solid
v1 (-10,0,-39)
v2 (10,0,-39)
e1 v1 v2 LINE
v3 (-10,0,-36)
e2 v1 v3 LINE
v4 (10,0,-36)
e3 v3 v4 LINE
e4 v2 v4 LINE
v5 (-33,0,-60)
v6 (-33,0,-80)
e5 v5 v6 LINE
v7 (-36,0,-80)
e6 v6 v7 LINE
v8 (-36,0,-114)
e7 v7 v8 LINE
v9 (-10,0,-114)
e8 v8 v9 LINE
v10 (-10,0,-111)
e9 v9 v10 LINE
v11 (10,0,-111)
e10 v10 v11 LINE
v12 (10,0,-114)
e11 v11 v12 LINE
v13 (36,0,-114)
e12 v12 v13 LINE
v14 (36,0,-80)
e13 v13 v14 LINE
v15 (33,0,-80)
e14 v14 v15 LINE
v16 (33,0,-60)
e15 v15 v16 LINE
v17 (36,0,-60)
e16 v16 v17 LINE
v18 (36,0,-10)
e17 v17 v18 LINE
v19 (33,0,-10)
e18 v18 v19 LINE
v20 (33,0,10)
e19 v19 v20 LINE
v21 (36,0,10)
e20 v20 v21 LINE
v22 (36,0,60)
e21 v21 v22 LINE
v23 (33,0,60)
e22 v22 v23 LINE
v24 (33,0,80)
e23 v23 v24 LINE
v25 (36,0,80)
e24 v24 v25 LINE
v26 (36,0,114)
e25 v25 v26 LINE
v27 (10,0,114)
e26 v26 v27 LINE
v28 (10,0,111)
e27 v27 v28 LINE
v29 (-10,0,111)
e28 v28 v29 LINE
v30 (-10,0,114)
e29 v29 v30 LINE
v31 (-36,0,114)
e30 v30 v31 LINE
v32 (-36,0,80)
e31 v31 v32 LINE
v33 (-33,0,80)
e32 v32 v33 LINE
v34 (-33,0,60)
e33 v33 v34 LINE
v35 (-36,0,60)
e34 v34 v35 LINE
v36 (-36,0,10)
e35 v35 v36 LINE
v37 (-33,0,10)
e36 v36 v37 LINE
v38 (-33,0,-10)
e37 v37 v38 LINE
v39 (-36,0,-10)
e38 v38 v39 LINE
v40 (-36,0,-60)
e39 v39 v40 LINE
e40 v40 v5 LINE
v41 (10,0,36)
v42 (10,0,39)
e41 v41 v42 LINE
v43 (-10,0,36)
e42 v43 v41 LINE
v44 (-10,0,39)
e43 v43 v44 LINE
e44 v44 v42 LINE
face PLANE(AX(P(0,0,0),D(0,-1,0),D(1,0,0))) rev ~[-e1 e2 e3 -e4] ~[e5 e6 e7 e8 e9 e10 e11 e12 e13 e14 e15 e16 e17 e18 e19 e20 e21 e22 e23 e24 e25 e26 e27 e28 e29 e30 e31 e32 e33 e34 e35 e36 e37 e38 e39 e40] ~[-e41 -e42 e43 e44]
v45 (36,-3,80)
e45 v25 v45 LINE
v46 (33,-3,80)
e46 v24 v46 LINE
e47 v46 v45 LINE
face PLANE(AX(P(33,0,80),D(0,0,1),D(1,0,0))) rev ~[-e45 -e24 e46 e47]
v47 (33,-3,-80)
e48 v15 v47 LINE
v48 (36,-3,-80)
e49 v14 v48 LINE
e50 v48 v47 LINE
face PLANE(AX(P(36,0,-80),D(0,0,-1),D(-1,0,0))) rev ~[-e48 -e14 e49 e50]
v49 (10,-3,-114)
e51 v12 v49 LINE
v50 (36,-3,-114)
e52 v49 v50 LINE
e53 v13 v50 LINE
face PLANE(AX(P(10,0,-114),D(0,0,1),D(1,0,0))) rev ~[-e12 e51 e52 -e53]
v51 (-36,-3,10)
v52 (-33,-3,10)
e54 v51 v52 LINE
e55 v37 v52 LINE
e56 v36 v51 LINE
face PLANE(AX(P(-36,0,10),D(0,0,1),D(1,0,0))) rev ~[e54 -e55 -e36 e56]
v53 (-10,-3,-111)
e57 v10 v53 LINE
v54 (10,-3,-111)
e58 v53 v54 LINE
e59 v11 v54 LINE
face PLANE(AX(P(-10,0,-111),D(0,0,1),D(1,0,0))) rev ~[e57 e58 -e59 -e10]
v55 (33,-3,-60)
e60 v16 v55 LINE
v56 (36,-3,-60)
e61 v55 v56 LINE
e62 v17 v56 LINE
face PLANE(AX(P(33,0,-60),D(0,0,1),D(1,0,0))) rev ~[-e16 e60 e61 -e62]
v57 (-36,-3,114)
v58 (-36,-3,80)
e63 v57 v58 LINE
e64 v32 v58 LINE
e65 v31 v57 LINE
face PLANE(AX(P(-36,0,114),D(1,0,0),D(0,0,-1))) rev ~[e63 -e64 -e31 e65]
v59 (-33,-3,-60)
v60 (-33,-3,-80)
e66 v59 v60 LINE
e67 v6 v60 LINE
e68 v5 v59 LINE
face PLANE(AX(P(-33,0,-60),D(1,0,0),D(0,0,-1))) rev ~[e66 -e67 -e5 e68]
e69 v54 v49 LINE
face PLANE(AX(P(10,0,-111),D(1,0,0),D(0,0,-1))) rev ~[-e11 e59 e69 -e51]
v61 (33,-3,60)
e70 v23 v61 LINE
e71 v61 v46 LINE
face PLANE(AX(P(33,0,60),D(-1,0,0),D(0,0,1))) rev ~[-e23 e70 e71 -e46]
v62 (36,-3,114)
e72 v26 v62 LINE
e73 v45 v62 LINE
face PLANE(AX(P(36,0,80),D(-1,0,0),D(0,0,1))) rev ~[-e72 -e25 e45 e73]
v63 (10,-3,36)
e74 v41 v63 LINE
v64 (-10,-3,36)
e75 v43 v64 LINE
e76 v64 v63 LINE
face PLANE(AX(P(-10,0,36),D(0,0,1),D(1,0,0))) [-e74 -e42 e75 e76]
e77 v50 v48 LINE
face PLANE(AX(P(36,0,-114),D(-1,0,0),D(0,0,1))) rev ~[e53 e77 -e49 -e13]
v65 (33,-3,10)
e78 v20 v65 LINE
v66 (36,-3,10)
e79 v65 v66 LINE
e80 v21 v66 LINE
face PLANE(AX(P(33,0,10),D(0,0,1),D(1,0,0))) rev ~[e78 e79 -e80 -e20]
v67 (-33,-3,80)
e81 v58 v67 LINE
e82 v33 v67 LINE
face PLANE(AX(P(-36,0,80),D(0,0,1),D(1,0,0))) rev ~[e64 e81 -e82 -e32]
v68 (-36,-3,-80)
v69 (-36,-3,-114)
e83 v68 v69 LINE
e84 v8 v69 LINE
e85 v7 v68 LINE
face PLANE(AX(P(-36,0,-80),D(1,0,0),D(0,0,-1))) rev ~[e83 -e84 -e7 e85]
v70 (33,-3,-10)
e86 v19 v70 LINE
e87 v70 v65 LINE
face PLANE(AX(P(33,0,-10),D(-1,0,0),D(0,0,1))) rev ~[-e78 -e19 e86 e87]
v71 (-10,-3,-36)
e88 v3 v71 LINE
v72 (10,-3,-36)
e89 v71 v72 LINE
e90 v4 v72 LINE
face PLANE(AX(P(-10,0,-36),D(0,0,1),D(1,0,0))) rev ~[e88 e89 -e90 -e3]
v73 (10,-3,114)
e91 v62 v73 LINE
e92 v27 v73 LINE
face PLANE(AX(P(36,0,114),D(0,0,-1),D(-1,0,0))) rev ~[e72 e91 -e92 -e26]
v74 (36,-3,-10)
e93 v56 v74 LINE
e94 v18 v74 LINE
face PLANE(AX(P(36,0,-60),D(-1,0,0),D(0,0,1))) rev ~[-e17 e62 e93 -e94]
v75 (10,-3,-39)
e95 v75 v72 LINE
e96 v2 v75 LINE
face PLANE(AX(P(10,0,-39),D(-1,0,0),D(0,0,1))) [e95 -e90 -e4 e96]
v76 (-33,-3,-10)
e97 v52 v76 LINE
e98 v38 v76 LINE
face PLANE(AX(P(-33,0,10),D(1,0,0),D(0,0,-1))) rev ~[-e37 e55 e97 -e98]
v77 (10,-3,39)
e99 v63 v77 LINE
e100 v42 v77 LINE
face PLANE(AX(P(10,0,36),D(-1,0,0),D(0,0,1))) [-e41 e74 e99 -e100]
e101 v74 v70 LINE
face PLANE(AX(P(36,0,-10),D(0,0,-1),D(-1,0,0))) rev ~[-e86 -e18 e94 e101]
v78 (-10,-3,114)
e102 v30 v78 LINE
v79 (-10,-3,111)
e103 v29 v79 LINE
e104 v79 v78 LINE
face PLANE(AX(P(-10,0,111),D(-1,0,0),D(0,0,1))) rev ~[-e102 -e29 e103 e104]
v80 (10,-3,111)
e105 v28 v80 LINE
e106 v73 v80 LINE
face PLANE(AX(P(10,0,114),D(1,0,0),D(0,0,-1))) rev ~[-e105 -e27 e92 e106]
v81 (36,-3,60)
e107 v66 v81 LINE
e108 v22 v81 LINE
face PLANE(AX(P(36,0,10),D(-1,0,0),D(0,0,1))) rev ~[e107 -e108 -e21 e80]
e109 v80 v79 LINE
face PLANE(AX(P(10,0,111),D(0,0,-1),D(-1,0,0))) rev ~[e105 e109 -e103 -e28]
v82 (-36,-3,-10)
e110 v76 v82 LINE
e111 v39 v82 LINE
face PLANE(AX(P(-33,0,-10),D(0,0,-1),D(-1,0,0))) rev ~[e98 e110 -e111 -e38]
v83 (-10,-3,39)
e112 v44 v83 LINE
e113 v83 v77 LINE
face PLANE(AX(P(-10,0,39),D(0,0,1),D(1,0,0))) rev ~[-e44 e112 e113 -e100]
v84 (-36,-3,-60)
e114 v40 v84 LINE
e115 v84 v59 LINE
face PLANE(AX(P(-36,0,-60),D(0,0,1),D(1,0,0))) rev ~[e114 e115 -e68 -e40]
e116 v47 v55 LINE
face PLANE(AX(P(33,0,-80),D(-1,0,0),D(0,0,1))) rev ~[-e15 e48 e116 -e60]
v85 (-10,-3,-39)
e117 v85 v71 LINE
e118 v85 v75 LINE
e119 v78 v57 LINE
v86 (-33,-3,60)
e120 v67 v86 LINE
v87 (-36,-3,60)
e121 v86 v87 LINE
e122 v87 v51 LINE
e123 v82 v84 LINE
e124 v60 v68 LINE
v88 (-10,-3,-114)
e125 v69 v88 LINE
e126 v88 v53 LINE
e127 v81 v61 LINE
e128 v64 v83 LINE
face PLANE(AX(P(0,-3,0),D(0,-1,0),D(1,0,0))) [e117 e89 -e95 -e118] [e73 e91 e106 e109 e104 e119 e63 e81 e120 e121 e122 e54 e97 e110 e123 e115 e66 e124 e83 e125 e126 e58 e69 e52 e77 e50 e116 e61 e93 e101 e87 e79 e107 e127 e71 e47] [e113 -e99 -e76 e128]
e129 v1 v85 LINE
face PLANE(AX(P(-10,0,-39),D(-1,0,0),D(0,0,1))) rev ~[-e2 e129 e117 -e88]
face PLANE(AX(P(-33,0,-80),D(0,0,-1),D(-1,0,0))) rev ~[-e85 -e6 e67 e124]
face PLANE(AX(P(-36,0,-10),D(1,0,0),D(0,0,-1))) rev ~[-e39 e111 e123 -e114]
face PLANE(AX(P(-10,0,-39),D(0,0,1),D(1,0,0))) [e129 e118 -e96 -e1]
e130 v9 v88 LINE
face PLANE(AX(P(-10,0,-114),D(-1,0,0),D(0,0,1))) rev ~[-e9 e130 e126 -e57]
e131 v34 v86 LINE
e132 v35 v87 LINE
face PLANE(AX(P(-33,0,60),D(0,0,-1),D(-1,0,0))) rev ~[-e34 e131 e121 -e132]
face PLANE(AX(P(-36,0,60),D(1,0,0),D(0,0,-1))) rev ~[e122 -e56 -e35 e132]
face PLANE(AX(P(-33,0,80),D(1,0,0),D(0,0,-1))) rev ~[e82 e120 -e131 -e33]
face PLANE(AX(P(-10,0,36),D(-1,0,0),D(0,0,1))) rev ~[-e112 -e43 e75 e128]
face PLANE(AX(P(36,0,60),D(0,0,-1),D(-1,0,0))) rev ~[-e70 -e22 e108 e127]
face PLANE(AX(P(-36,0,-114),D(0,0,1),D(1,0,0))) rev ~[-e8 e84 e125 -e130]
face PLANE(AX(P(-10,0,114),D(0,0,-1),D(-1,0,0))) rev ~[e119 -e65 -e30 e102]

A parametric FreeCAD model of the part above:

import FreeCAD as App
import Part
import Sketcher

doc = App.newDocument("Part")
body = doc.addObject("PartDesign::Body", "Body")

# Sketch on XZ plane
sketch1 = body.newObject("Sketcher::SketchObject", "Sketch")
sketch1.AttachmentSupport = (doc.getObject("XZ_Plane"), [""])
sketch1.MapMode = "FlatFace"
sketch1.addGeometry(Part.LineSegment(App.Vector(36, 80, 0), App.Vector(36, 114, 0)), False)
sketch1.addGeometry(Part.LineSegment(App.Vector(36, 114, 0), App.Vector(10, 114, 0)), False)
sketch1.addGeometry(Part.LineSegment(App.Vector(10, 114, 0), App.Vector(10, 111, 0)), False)
sketch1.addGeometry(Part.LineSegment(App.Vector(10, 111, 0), App.Vector(-10, 111, 0)), False)
sketch1.addGeometry(Part.LineSegment(App.Vector(-10, 111, 0), App.Vector(-10, 114, 0)), False)
sketch1.addGeometry(Part.LineSegment(App.Vector(-10, 114, 0), App.Vector(-36, 114, 0)), False)
sketch1.addGeometry(Part.LineSegment(App.Vector(-36, 114, 0), App.Vector(-36, 80, 0)), False)
sketch1.addGeometry(Part.LineSegment(App.Vector(-36, 80, 0), App.Vector(-33, 80, 0)), False)
sketch1.addGeometry(Part.LineSegment(App.Vector(-33, 80, 0), App.Vector(-33, 60, 0)), False)
sketch1.addGeometry(Part.LineSegment(App.Vector(-33, 60, 0), App.Vector(-36, 60, 0)), False)
sketch1.addGeometry(Part.LineSegment(App.Vector(-36, 60, 0), App.Vector(-36, 10, 0)), False)
sketch1.addGeometry(Part.LineSegment(App.Vector(-36, 10, 0), App.Vector(-33, 10, 0)), False)
sketch1.addGeometry(Part.LineSegment(App.Vector(-33, 10, 0), App.Vector(-33, -10, 0)), False)
sketch1.addGeometry(Part.LineSegment(App.Vector(-33, -10, 0), App.Vector(-36, -10, 0)), False)
sketch1.addGeometry(Part.LineSegment(App.Vector(-36, -10, 0), App.Vector(-36, -60, 0)), False)
sketch1.addGeometry(Part.LineSegment(App.Vector(-36, -60, 0), App.Vector(-33, -60, 0)), False)
sketch1.addGeometry(Part.LineSegment(App.Vector(-33, -60, 0), App.Vector(-33, -80, 0)), False)
sketch1.addGeometry(Part.LineSegment(App.Vector(-33, -80, 0), App.Vector(-36, -80, 0)), False)
sketch1.addGeometry(Part.LineSegment(App.Vector(-36, -80, 0), App.Vector(-36, -114, 0)), False)
sketch1.addGeometry(Part.LineSegment(App.Vector(-36, -114, 0), App.Vector(-10, -114, 0)), False)
sketch1.addGeometry(Part.LineSegment(App.Vector(-10, -114, 0), App.Vector(-10, -111, 0)), False)
sketch1.addGeometry(Part.LineSegment(App.Vector(-10, -111, 0), App.Vector(10, -111, 0)), False)
sketch1.addGeometry(Part.LineSegment(App.Vector(10, -111, 0), App.Vector(10, -114, 0)), False)
sketch1.addGeometry(Part.LineSegment(App.Vector(10, -114, 0), App.Vector(36, -114, 0)), False)
sketch1.addGeometry(Part.LineSegment(App.Vector(36, -114, 0), App.Vector(36, -80, 0)), False)
sketch1.addGeometry(Part.LineSegment(App.Vector(36, -80, 0), App.Vector(33, -80, 0)), False)
sketch1.addGeometry(Part.LineSegment(App.Vector(33, -80, 0), App.Vector(33, -60, 0)), False)
sketch1.addGeometry(Part.LineSegment(App.Vector(33, -60, 0), App.Vector(36, -60, 0)), False)
sketch1.addGeometry(Part.LineSegment(App.Vector(36, -60, 0), App.Vector(36, -10, 0)), False)
sketch1.addGeometry(Part.LineSegment(App.Vector(36, -10, 0), App.Vector(33, -10, 0)), False)
sketch1.addGeometry(Part.LineSegment(App.Vector(33, -10, 0), App.Vector(33, 10, 0)), False)
sketch1.addGeometry(Part.LineSegment(App.Vector(33, 10, 0), App.Vector(36, 10, 0)), False)
sketch1.addGeometry(Part.LineSegment(App.Vector(36, 10, 0), App.Vector(36, 60, 0)), False)
sketch1.addGeometry(Part.LineSegment(App.Vector(36, 60, 0), App.Vector(33, 60, 0)), False)
sketch1.addGeometry(Part.LineSegment(App.Vector(33, 60, 0), App.Vector(33, 80, 0)), False)
sketch1.addGeometry(Part.LineSegment(App.Vector(33, 80, 0), App.Vector(36, 80, 0)), False)
sketch1.addGeometry(Part.LineSegment(App.Vector(10, -39, 0), App.Vector(-10, -39, 0)), False)
sketch1.addGeometry(Part.LineSegment(App.Vector(-10, -39, 0), App.Vector(-10, -36, 0)), False)
sketch1.addGeometry(Part.LineSegment(App.Vector(-10, -36, 0), App.Vector(10, -36, 0)), False)
sketch1.addGeometry(Part.LineSegment(App.Vector(10, -36, 0), App.Vector(10, -39, 0)), False)
sketch1.addGeometry(Part.LineSegment(App.Vector(10, 36, 0), App.Vector(-10, 36, 0)), False)
sketch1.addGeometry(Part.LineSegment(App.Vector(-10, 36, 0), App.Vector(-10, 39, 0)), False)
sketch1.addGeometry(Part.LineSegment(App.Vector(-10, 39, 0), App.Vector(10, 39, 0)), False)
sketch1.addGeometry(Part.LineSegment(App.Vector(10, 39, 0), App.Vector(10, 36, 0)), False)
sketch1.addConstraint(Sketcher.Constraint("Coincident", 0, 2, 1, 1))
sketch1.addConstraint(Sketcher.Constraint("Coincident", 1, 2, 2, 1))
sketch1.addConstraint(Sketcher.Constraint("Coincident", 2, 2, 3, 1))
sketch1.addConstraint(Sketcher.Constraint("Coincident", 3, 2, 4, 1))
sketch1.addConstraint(Sketcher.Constraint("Coincident", 4, 2, 5, 1))
sketch1.addConstraint(Sketcher.Constraint("Coincident", 5, 2, 6, 1))
sketch1.addConstraint(Sketcher.Constraint("Coincident", 6, 2, 7, 1))
sketch1.addConstraint(Sketcher.Constraint("Coincident", 7, 2, 8, 1))
sketch1.addConstraint(Sketcher.Constraint("Coincident", 8, 2, 9, 1))
sketch1.addConstraint(Sketcher.Constraint("Coincident", 9, 2, 10, 1))
sketch1.addConstraint(Sketcher.Constraint("Coincident", 10, 2, 11, 1))
sketch1.addConstraint(Sketcher.Constraint("Coincident", 11, 2, 12, 1))
sketch1.addConstraint(Sketcher.Constraint("Coincident", 12, 2, 13, 1))
sketch1.addConstraint(Sketcher.Constraint("Coincident", 13, 2, 14, 1))
sketch1.addConstraint(Sketcher.Constraint("Coincident", 14, 2, 15, 1))
sketch1.addConstraint(Sketcher.Constraint("Coincident", 15, 2, 16, 1))
sketch1.addConstraint(Sketcher.Constraint("Coincident", 16, 2, 17, 1))
sketch1.addConstraint(Sketcher.Constraint("Coincident", 17, 2, 18, 1))
sketch1.addConstraint(Sketcher.Constraint("Coincident", 18, 2, 19, 1))
sketch1.addConstraint(Sketcher.Constraint("Coincident", 19, 2, 20, 1))
sketch1.addConstraint(Sketcher.Constraint("Coincident", 20, 2, 21, 1))
sketch1.addConstraint(Sketcher.Constraint("Coincident", 21, 2, 22, 1))
sketch1.addConstraint(Sketcher.Constraint("Coincident", 22, 2, 23, 1))
sketch1.addConstraint(Sketcher.Constraint("Coincident", 23, 2, 24, 1))
sketch1.addConstraint(Sketcher.Constraint("Coincident", 24, 2, 25, 1))
sketch1.addConstraint(Sketcher.Constraint("Coincident", 25, 2, 26, 1))
sketch1.addConstraint(Sketcher.Constraint("Coincident", 26, 2, 27, 1))
sketch1.addConstraint(Sketcher.Constraint("Coincident", 27, 2, 28, 1))
sketch1.addConstraint(Sketcher.Constraint("Coincident", 28, 2, 29, 1))
sketch1.addConstraint(Sketcher.Constraint("Coincident", 29, 2, 30, 1))
sketch1.addConstraint(Sketcher.Constraint("Coincident", 30, 2, 31, 1))
sketch1.addConstraint(Sketcher.Constraint("Coincident", 31, 2, 32, 1))
sketch1.addConstraint(Sketcher.Constraint("Coincident", 32, 2, 33, 1))
sketch1.addConstraint(Sketcher.Constraint("Coincident", 33, 2, 34, 1))
sketch1.addConstraint(Sketcher.Constraint("Coincident", 34, 2, 35, 1))
sketch1.addConstraint(Sketcher.Constraint("Coincident", 35, 2, 0, 1))
sketch1.addConstraint(Sketcher.Constraint("Coincident", 36, 2, 37, 1))
sketch1.addConstraint(Sketcher.Constraint("Coincident", 37, 2, 38, 1))
sketch1.addConstraint(Sketcher.Constraint("Coincident", 38, 2, 39, 1))
sketch1.addConstraint(Sketcher.Constraint("Coincident", 39, 2, 36, 1))
sketch1.addConstraint(Sketcher.Constraint("Coincident", 40, 2, 41, 1))
sketch1.addConstraint(Sketcher.Constraint("Coincident", 41, 2, 42, 1))
sketch1.addConstraint(Sketcher.Constraint("Coincident", 42, 2, 43, 1))
sketch1.addConstraint(Sketcher.Constraint("Coincident", 43, 2, 40, 1))
sketch1.addConstraint(Sketcher.Constraint("Vertical", 0))
sketch1.addConstraint(Sketcher.Constraint("Horizontal", 1))
sketch1.addConstraint(Sketcher.Constraint("Vertical", 2))
sketch1.addConstraint(Sketcher.Constraint("Horizontal", 3))
sketch1.addConstraint(Sketcher.Constraint("Vertical", 4))
sketch1.addConstraint(Sketcher.Constraint("Horizontal", 5))
sketch1.addConstraint(Sketcher.Constraint("Vertical", 6))
sketch1.addConstraint(Sketcher.Constraint("Horizontal", 7))
sketch1.addConstraint(Sketcher.Constraint("Vertical", 8))
sketch1.addConstraint(Sketcher.Constraint("Horizontal", 9))
sketch1.addConstraint(Sketcher.Constraint("Vertical", 10))
sketch1.addConstraint(Sketcher.Constraint("Horizontal", 11))
sketch1.addConstraint(Sketcher.Constraint("Vertical", 12))
sketch1.addConstraint(Sketcher.Constraint("Horizontal", 13))
sketch1.addConstraint(Sketcher.Constraint("Vertical", 14))
sketch1.addConstraint(Sketcher.Constraint("Horizontal", 15))
sketch1.addConstraint(Sketcher.Constraint("Vertical", 16))
sketch1.addConstraint(Sketcher.Constraint("Horizontal", 17))
sketch1.addConstraint(Sketcher.Constraint("Vertical", 18))
sketch1.addConstraint(Sketcher.Constraint("Horizontal", 19))
sketch1.addConstraint(Sketcher.Constraint("Vertical", 20))
sketch1.addConstraint(Sketcher.Constraint("Horizontal", 21))
sketch1.addConstraint(Sketcher.Constraint("Vertical", 22))
sketch1.addConstraint(Sketcher.Constraint("Horizontal", 23))
sketch1.addConstraint(Sketcher.Constraint("Vertical", 24))
sketch1.addConstraint(Sketcher.Constraint("Horizontal", 25))
sketch1.addConstraint(Sketcher.Constraint("Vertical", 26))
sketch1.addConstraint(Sketcher.Constraint("Horizontal", 27))
sketch1.addConstraint(Sketcher.Constraint("Vertical", 28))
sketch1.addConstraint(Sketcher.Constraint("Horizontal", 29))
sketch1.addConstraint(Sketcher.Constraint("Vertical", 30))
sketch1.addConstraint(Sketcher.Constraint("Horizontal", 31))
sketch1.addConstraint(Sketcher.Constraint("Vertical", 32))
sketch1.addConstraint(Sketcher.Constraint("Horizontal", 33))
sketch1.addConstraint(Sketcher.Constraint("Vertical", 34))
sketch1.addConstraint(Sketcher.Constraint("Horizontal", 35))
sketch1.addConstraint(Sketcher.Constraint("Horizontal", 36))
sketch1.addConstraint(Sketcher.Constraint("Vertical", 37))
sketch1.addConstraint(Sketcher.Constraint("Horizontal", 38))
sketch1.addConstraint(Sketcher.Constraint("Vertical", 39))
sketch1.addConstraint(Sketcher.Constraint("Horizontal", 40))
sketch1.addConstraint(Sketcher.Constraint("Vertical", 41))
sketch1.addConstraint(Sketcher.Constraint("Horizontal", 42))
sketch1.addConstraint(Sketcher.Constraint("Vertical", 43))
sketch1.addConstraint(Sketcher.Constraint("Symmetric", 0, 2, 18, 2, -1, 1))
sketch1.addConstraint(Sketcher.Constraint("Symmetric", 2, 2, 20, 2, -1, 1))
sketch1.addConstraint(Sketcher.Constraint("Symmetric", 4, 2, 22, 2, -1, 1))
sketch1.addConstraint(Sketcher.Constraint("Symmetric", 6, 2, 24, 2, -1, 1))
sketch1.addConstraint(Sketcher.Constraint("Symmetric", 8, 2, 26, 2, -1, 1))
sketch1.addConstraint(Sketcher.Constraint("Symmetric", 10, 2, 28, 2, -1, 1))
sketch1.addConstraint(Sketcher.Constraint("Symmetric", 12, 2, 30, 2, -1, 1))
sketch1.addConstraint(Sketcher.Constraint("Symmetric", 14, 2, 32, 2, -1, 1))
sketch1.addConstraint(Sketcher.Constraint("Symmetric", 16, 2, 34, 2, -1, 1))
sketch1.addConstraint(Sketcher.Constraint("Symmetric", 38, 2, 40, 2, -1, 1))
sketch1.addConstraint(Sketcher.Constraint("Symmetric", 36, 2, 42, 2, -1, 1))
sketch1.addConstraint(Sketcher.Constraint("Symmetric", 1, 2, 4, 2, -2))
sketch1.addConstraint(Sketcher.Constraint("Symmetric", 17, 2, 24, 2, -2))
sketch1.addConstraint(Sketcher.Constraint("Symmetric", 15, 2, 26, 2, -2))
sketch1.addConstraint(Sketcher.Constraint("Symmetric", 13, 2, 28, 2, -2))
sketch1.addConstraint(Sketcher.Constraint("Vertical", 6, 2, 9, 2))
sketch1.addConstraint(Sketcher.Constraint("Vertical", 8, 2, 11, 2))
sketch1.addConstraint(Sketcher.Constraint("Vertical", 20, 2, 36, 2))
sketch1.addConstraint(Sketcher.Constraint("Vertical", 22, 2, 38, 2))
sketch1.addConstraint(Sketcher.Constraint("Equal", 35, 2))
sketch1.addConstraint(Sketcher.Constraint("Equal", 42, 8))
sketch1.addConstraint(Sketcher.Constraint("Equal", 8, 12))
sketch1.addConstraint(Sketcher.Constraint("Equal", 22, 37))
sketch1.addConstraint(Sketcher.Constraint("DistanceX", 1, 2, 1, 1, 26.0))
sketch1.addConstraint(Sketcher.Constraint("DistanceX", 3, 2, 3, 1, 20.0))
sketch1.addConstraint(Sketcher.Constraint("DistanceX", 7, 1, 7, 2, 3.0))
sketch1.addConstraint(Sketcher.Constraint("DistanceY", 0, 1, 0, 2, 34.0))
sketch1.addConstraint(Sketcher.Constraint("DistanceY", 10, 2, 10, 1, 50.0))
sketch1.addConstraint(Sketcher.Constraint("DistanceY", 36, 2, -1, 1, 39.0))
pad1 = body.newObject("PartDesign::Pad", "Pad")
pad1.Profile = sketch1
pad1.Length = 3

doc.recompute()
